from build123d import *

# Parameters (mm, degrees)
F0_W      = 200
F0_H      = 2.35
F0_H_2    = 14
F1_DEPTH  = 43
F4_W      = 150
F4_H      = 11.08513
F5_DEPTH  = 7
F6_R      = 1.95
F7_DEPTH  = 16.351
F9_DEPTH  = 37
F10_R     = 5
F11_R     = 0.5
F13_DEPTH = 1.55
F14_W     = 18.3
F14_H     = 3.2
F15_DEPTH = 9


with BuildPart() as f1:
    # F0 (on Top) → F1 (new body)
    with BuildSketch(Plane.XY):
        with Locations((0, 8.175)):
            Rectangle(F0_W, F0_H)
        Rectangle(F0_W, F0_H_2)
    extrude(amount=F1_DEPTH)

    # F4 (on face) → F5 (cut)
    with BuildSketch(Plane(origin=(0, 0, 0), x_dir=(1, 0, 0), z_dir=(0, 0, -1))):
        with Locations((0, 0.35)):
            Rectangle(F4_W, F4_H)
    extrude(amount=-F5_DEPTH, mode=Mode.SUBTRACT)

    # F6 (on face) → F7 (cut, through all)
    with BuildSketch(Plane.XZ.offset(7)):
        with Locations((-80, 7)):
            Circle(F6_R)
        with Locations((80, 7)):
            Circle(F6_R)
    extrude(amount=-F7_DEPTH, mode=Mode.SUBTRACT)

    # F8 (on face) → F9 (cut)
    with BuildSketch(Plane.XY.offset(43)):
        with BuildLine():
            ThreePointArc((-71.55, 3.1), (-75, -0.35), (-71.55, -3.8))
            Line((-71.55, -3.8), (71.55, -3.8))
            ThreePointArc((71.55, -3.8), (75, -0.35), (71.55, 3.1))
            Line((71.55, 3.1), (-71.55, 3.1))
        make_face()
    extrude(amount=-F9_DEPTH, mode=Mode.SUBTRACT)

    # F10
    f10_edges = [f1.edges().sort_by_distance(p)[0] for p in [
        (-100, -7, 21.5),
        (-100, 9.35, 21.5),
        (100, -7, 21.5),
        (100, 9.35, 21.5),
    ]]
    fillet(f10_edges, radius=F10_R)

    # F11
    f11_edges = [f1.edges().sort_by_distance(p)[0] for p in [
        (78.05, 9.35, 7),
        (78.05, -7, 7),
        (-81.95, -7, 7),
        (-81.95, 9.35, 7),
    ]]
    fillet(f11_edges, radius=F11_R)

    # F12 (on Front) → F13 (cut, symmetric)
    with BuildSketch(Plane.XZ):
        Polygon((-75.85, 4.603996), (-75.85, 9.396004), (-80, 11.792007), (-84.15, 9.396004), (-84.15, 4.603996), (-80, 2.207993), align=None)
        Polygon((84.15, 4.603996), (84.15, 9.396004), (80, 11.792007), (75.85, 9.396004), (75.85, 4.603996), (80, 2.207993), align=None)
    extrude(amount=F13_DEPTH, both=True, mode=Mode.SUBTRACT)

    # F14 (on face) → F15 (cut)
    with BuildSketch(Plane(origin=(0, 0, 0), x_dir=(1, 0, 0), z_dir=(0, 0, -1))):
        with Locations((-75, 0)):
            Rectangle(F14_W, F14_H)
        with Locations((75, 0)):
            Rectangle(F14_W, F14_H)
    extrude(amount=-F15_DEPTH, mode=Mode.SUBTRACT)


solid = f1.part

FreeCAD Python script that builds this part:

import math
import FreeCAD as App
import Part
import Sketcher

V = App.Vector
Q = App.Units.Quantity


def edges_at(feature, points):
    """Names of the edges that pass closest to the given points."""
    edges = feature.Shape.Edges
    near = lambda p: min(range(len(edges)), key=lambda i: edges[i].distToShape(Part.Vertex(*p))[0])
    return sorted({f"Edge{near(p) + 1}" for p in points})

doc = App.newDocument("Part")
body = doc.addObject("PartDesign::Body", "Body")

sketch1 = doc.addObject("Sketcher::SketchObject", "Sketch")
body.addObject(sketch1)
sketch1.AttachmentSupport = (doc.XY_Plane, [""])
sketch1.MapMode = "FlatFace"
sketch1.addGeometry([
    Part.LineSegment(V(-100, 9, 0), V(-100, -7, 0)),
    Part.LineSegment(V(-100, -7, 0), V(100, -7, 0)),
    Part.LineSegment(V(100, -7, 0), V(100, 9, 0)),
    Part.LineSegment(V(100, 9, 0), V(-100, 9, 0)),
], False)
sketch1.addConstraint([
    Sketcher.Constraint("Coincident", 0, 2, 1, 1),
    Sketcher.Constraint("Coincident", 1, 2, 2, 1),
    Sketcher.Constraint("Coincident", 2, 2, 3, 1),
    Sketcher.Constraint("Coincident", 3, 2, 0, 1),
    Sketcher.Constraint("Vertical", 0),
    Sketcher.Constraint("Horizontal", 1),
    Sketcher.Constraint("Vertical", 2),
    Sketcher.Constraint("Horizontal", 3),
    Sketcher.Constraint("DistanceX", 1, 1, 1, 2, 200.0),
    Sketcher.Constraint("DistanceX", 0, 2, -1, 1, 100.0),
    Sketcher.Constraint("DistanceY", 0, 2, -1, 1, 7.0),
    Sketcher.Constraint("DistanceY", 0, 2, 0, 1, 16.35),
])
pad1 = doc.addObject("PartDesign::Pad", "Pad")
body.addObject(pad1)
pad1.Profile = sketch1
pad1.Length = 43

sketch2 = doc.addObject("Sketcher::SketchObject", "Sketch001")
body.addObject(sketch2)
sketch2.AttachmentSupport = (doc.XY_Plane, [""])
sketch2.MapMode = "FlatFace"
sketch2.addGeometry([
    Part.LineSegment(V(-75, -6, 0), V(-75, 5, 0)),
    Part.LineSegment(V(-75, 5, 0), V(75, 5, 0)),
    Part.LineSegment(V(75, 5, 0), V(75, -6, 0)),
    Part.LineSegment(V(75, -6, 0), V(-75, -6, 0)),
], False)
sketch2.addConstraint([
    Sketcher.Constraint("Coincident", 0, 2, 1, 1),
    Sketcher.Constraint("Coincident", 1, 2, 2, 1),
    Sketcher.Constraint("Coincident", 2, 2, 3, 1),
    Sketcher.Constraint("Coincident", 3, 2, 0, 1),
    Sketcher.Constraint("Vertical", 0),
    Sketcher.Constraint("Horizontal", 1),
    Sketcher.Constraint("Vertical", 2),
    Sketcher.Constraint("Horizontal", 3),
    Sketcher.Constraint("DistanceX", 1, 1, 1, 2, 150.0),
    Sketcher.Constraint("DistanceX", 0, 2, -1, 1, 75.0),
    Sketcher.Constraint("DistanceY", 0, 1, 0, 2, 11.08513),
    Sketcher.Constraint("DistanceY", -1, 1, 0, 2, 5.192565),
])
pocket1 = doc.addObject("PartDesign::Pocket", "Pocket")
body.addObject(pocket1)
pocket1.Profile = sketch2
pocket1.Length = 7
pocket1.Reversed = True

sketch3 = doc.addObject("Sketcher::SketchObject", "Sketch002")
body.addObject(sketch3)
sketch3.AttachmentSupport = (doc.XZ_Plane, [""])
sketch3.MapMode = "FlatFace"
sketch3.AttachmentOffset = App.Placement(V(0, 0, 7), App.Rotation())
sketch3.addGeometry([
    Part.Circle(V(-80, 7, 0), V(0, 0, 1), 1.9),
    Part.Circle(V(80, 7, 0), V(0, 0, 1), 1.9),
], False)
sketch3.addConstraint([
    Sketcher.Constraint("Equal", 0, 1),
    Sketcher.Constraint("Symmetric", 0, 3, 1, 3, -2),
    Sketcher.Constraint("Diameter", 0, 3.9),
    Sketcher.Constraint("DistanceX", 0, 3, -1, 1, 80.0),
    Sketcher.Constraint("DistanceY", -1, 1, 0, 3, 7.0),
])
pocket2 = doc.addObject("PartDesign::Pocket", "Pocket001")
body.addObject(pocket2)
pocket2.Profile = sketch3
pocket2.Type = "ThroughAll"

sketch4 = doc.addObject("Sketcher::SketchObject", "Sketch003")
body.addObject(sketch4)
sketch4.AttachmentSupport = (doc.XY_Plane, [""])
sketch4.MapMode = "FlatFace"
sketch4.AttachmentOffset = App.Placement(V(0, 0, 43), App.Rotation())
sketch4.addGeometry([
    Part.ArcOfCircle(Part.Circle(V(-71.5, -0.3, 0), V(0, 0, 1), 3.5), math.radians(90), math.radians(270)),
    Part.LineSegment(V(-71.5, -3.8, 0), V(71.5, -3.8, 0)),
    Part.ArcOfCircle(Part.Circle(V(71.5, -0.3, 0), V(0, 0, 1), 3.5), math.radians(-90), math.radians(90)),
    Part.LineSegment(V(71.5, 3.1, 0), V(-71.5, 3.1, 0)),
], False)
sketch4.addConstraint([
    Sketcher.Constraint("Tangent", 0, 2, 1, 1),
    Sketcher.Constraint("Tangent", 1, 2, 2, 1),
    Sketcher.Constraint("Tangent", 2, 2, 3, 1),
    Sketcher.Constraint("Tangent", 3, 2, 0, 1),
    Sketcher.Constraint("Horizontal", 1),
    Sketcher.Constraint("Horizontal", 3),
    Sketcher.Constraint("Radius", 0, 3.45),
    Sketcher.Constraint("DistanceX", 1, 1, 1, 2, 143.1),
    Sketcher.Constraint("DistanceY", 0, 2, -1, 1, 3.8),
    Sketcher.Constraint("DistanceX", 0, 3, -1, 1, 71.55),
])
pocket3 = doc.addObject("PartDesign::Pocket", "Pocket002")
body.addObject(pocket3)
pocket3.Profile = sketch4
pocket3.Length = 37
doc.recompute()

fillet = doc.addObject("PartDesign::Fillet", "Fillet")
body.addObject(fillet)
fillet.Base = (pocket3, edges_at(pocket3, [
    (-100, -7, 21.5),
    (-100, 9.35, 21.5),
    (100, -7, 21.5),
    (100, 9.35, 21.5),
]))
fillet.Radius = 5
doc.recompute()

fillet2 = doc.addObject("PartDesign::Fillet", "Fillet001")
body.addObject(fillet2)
fillet2.Base = (fillet, edges_at(fillet, [
    (78.05, 9.35, 7),
    (78.05, -7, 7),
    (-81.95, -7, 7),
    (-81.95, 9.35, 7),
]))
fillet2.Radius = 0.5

sketch5 = doc.addObject("Sketcher::SketchObject", "Sketch004")
body.addObject(sketch5)
sketch5.AttachmentSupport = (doc.XZ_Plane, [""])
sketch5.MapMode = "FlatFace"
sketch5.addGeometry([
    Part.LineSegment(V(-75.8, 4.6, 0), V(-75.8, 9.4, 0)),
    Part.LineSegment(V(-75.8, 9.4, 0), V(-80, 11.8, 0)),
    Part.LineSegment(V(-80, 11.8, 0), V(-84.2, 9.4, 0)),
    Part.LineSegment(V(-84.2, 9.4, 0), V(-84.2, 4.6, 0)),
    Part.LineSegment(V(-84.2, 4.6, 0), V(-80, 2.2, 0)),
    Part.LineSegment(V(-80, 2.2, 0), V(-75.8, 4.6, 0)),
    Part.LineSegment(V(84.2, 4.6, 0), V(84.2, 9.4, 0)),
    Part.LineSegment(V(84.2, 9.4, 0), V(80, 11.8, 0)),
    Part.LineSegment(V(80, 11.8, 0), V(75.8, 9.4, 0)),
    Part.LineSegment(V(75.8, 9.4, 0), V(75.8, 4.6, 0)),
    Part.LineSegment(V(75.8, 4.6, 0), V(80, 2.2, 0)),
    Part.LineSegment(V(80, 2.2, 0), V(84.2, 4.6, 0)),
], False)
sketch5.addConstraint([
    Sketcher.Constraint("Coincident", 0, 2, 1, 1),
    Sketcher.Constraint("Coincident", 1, 2, 2, 1),
    Sketcher.Constraint("Coincident", 2, 2, 3, 1),
    Sketcher.Constraint("Coincident", 3, 2, 4, 1),
    Sketcher.Constraint("Coincident", 4, 2, 5, 1),
    Sketcher.Constraint("Coincident", 5, 2, 0, 1),
    Sketcher.Constraint("Coincident", 6, 2, 7, 1),
    Sketcher.Constraint("Coincident", 7, 2, 8, 1),
    Sketcher.Constraint("Coincident", 8, 2, 9, 1),
    Sketcher.Constraint("Coincident", 9, 2, 10, 1),
    Sketcher.Constraint("Coincident", 10, 2, 11, 1),
    Sketcher.Constraint("Coincident", 11, 2, 6, 1),
    Sketcher.Constraint("Vertical", 0),
    Sketcher.Constraint("Vertical", 3),
    Sketcher.Constraint("Vertical", 6),
    Sketcher.Constraint("Vertical", 9),
    Sketcher.Constraint("Symmetric", 2, 2, 6, 2, -2),
    Sketcher.Constraint("Symmetric", 1, 2, 7, 2, -2),
    Sketcher.Constraint("Symmetric", 0, 2, 8, 2, -2),
    Sketcher.Constraint("Symmetric", 4, 2, 10, 2, -2),
    Sketcher.Constraint("Parallel", 1, 4),
    Sketcher.Constraint("Parallel", 2, 5),
    Sketcher.Constraint("Parallel", 4, 7),
    Sketcher.Constraint("Parallel", 7, 10),
    Sketcher.Constraint("Parallel", 8, 11),
    Sketcher.Constraint("Horizontal", 0, 2, 2, 2),
    Sketcher.Constraint("Horizontal", 3, 2, 5, 2),
    Sketcher.Constraint("Angle", 1, Q("150.000006 deg")),
    Sketcher.Constraint("DistanceX", 1, 2, -1, 1, 80.0),
    Sketcher.Constraint("DistanceX", 2, 2, 0, 2, 8.3),
    Sketcher.Constraint("DistanceY", 0, 1, 0, 2, 4.792008),
    Sketcher.Constraint("DistanceY", -1, 1, 0, 2, 9.396004),
])
pocket4 = doc.addObject("PartDesign::Pocket", "Pocket003")
body.addObject(pocket4)
pocket4.Profile = sketch5
pocket4.Length = 3.1
pocket4.Midplane = True

sketch6 = doc.addObject("Sketcher::SketchObject", "Sketch005")
body.addObject(sketch6)
sketch6.AttachmentSupport = (doc.XY_Plane, [""])
sketch6.MapMode = "FlatFace"
sketch6.addGeometry([
    Part.LineSegment(V(-84.2, -1.6, 0), V(-84.2, 1.6, 0)),
    Part.LineSegment(V(-84.2, 1.6, 0), V(-65.8, 1.6, 0)),
    Part.LineSegment(V(-65.8, 1.6, 0), V(-65.8, -1.6, 0)),
    Part.LineSegment(V(-65.8, -1.6, 0), V(-84.2, -1.6, 0)),
    Part.LineSegment(V(65.8, -1.6, 0), V(65.8, 1.6, 0)),
    Part.LineSegment(V(65.8, 1.6, 0), V(84.2, 1.6, 0)),
    Part.LineSegment(V(84.2, 1.6, 0), V(84.2, -1.6, 0)),
    Part.LineSegment(V(84.2, -1.6, 0), V(65.8, -1.6, 0)),
], False)
sketch6.addConstraint([
    Sketcher.Constraint("Coincident", 0, 2, 1, 1),
    Sketcher.Constraint("Coincident", 1, 2, 2, 1),
    Sketcher.Constraint("Coincident", 2, 2, 3, 1),
    Sketcher.Constraint("Coincident", 3, 2, 0, 1),
    Sketcher.Constraint("Coincident", 4, 2, 5, 1),
    Sketcher.Constraint("Coincident", 5, 2, 6, 1),
    Sketcher.Constraint("Coincident", 6, 2, 7, 1),
    Sketcher.Constraint("Coincident", 7, 2, 4, 1),
    Sketcher.Constraint("Vertical", 0),
    Sketcher.Constraint("Horizontal", 1),
    Sketcher.Constraint("Vertical", 2),
    Sketcher.Constraint("Horizontal", 3),
    Sketcher.Constraint("Vertical", 4),
    Sketcher.Constraint("Horizontal", 5),
    Sketcher.Constraint("Vertical", 6),
    Sketcher.Constraint("Horizontal", 7),
    Sketcher.Constraint("Symmetric", 2, 2, 4, 2, -1, 1),
    Sketcher.Constraint("Symmetric", 0, 2, 6, 2, -1, 1),
    Sketcher.Constraint("Horizontal", 1, 2, 4, 2),
    Sketcher.Constraint("DistanceX", 1, 1, 1, 2, 18.3),
    Sketcher.Constraint("DistanceY", 0, 1, 0, 2, 3.2),
    Sketcher.Constraint("DistanceX", 0, 2, 4, 2, 150.0),
])
pocket5 = doc.addObject("PartDesign::Pocket", "Pocket004")
body.addObject(pocket5)
pocket5.Profile = sketch6
pocket5.Length = 9
pocket5.Reversed = True

doc.recompute()
